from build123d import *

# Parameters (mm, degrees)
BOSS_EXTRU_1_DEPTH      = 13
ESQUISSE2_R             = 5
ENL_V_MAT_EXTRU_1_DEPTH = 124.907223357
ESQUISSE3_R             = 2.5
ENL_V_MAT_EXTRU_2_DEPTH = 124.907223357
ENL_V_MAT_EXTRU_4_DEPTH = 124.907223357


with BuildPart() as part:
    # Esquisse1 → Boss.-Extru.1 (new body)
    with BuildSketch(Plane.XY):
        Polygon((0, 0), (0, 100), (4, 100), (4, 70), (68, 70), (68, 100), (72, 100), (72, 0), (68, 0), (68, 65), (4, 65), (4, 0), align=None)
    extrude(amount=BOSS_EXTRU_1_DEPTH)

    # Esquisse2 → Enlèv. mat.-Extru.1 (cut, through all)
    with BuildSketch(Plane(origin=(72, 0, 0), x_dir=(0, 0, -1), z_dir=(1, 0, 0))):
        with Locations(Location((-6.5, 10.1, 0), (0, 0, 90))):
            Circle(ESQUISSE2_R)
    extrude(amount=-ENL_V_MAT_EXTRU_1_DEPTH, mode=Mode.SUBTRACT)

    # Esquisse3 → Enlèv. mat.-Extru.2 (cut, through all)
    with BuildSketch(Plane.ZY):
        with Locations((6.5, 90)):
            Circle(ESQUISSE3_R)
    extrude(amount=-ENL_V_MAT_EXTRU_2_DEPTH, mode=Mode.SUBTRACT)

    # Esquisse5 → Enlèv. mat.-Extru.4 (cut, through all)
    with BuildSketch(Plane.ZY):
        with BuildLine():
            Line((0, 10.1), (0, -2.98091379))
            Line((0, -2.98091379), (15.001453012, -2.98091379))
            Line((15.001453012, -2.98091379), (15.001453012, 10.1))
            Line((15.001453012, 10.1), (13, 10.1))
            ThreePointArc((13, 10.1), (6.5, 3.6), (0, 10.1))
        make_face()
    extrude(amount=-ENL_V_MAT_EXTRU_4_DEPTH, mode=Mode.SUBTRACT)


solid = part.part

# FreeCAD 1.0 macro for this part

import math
import FreeCAD as App
import Part
import Sketcher

doc = App.newDocument("Part")
body = doc.addObject("PartDesign::Body", "Body")

# Sketch on XY plane
sketch1 = body.newObject("Sketcher::SketchObject", "Sketch")
sketch1.AttachmentSupport = (doc.getObject("XY_Plane"), [""])
sketch1.MapMode = "FlatFace"
sketch1.addGeometry([
    Part.LineSegment(App.Vector(0, 100, 0), App.Vector(0, 0, 0)),  # 0
    Part.LineSegment(App.Vector(0, 0, 0), App.Vector(4, 0, 0)),  # 1
    Part.LineSegment(App.Vector(4, 0, 0), App.Vector(4, 65, 0)),  # 2
    Part.LineSegment(App.Vector(4, 65, 0), App.Vector(68, 65, 0)),  # 3
    Part.LineSegment(App.Vector(68, 65, 0), App.Vector(68, 0, 0)),  # 4
    Part.LineSegment(App.Vector(68, 0, 0), App.Vector(72, 0, 0)),  # 5
    Part.LineSegment(App.Vector(72, 0, 0), App.Vector(72, 100, 0)),  # 6
    Part.LineSegment(App.Vector(72, 100, 0), App.Vector(68, 100, 0)),  # 7
    Part.LineSegment(App.Vector(68, 100, 0), App.Vector(68, 70, 0)),  # 8
    Part.LineSegment(App.Vector(68, 70, 0), App.Vector(4, 70, 0)),  # 9
    Part.LineSegment(App.Vector(4, 70, 0), App.Vector(4, 100, 0)),  # 10
    Part.LineSegment(App.Vector(4, 100, 0), App.Vector(0, 100, 0)),  # 11
], False)
sketch1.addConstraint([
    Sketcher.Constraint("Coincident", 0, 2, 1, 1),
    Sketcher.Constraint("Coincident", 1, 2, 2, 1),
    Sketcher.Constraint("Coincident", 2, 2, 3, 1),
    Sketcher.Constraint("Coincident", 3, 2, 4, 1),
    Sketcher.Constraint("Coincident", 4, 2, 5, 1),
    Sketcher.Constraint("Coincident", 5, 2, 6, 1),
    Sketcher.Constraint("Coincident", 6, 2, 7, 1),
    Sketcher.Constraint("Coincident", 7, 2, 8, 1),
    Sketcher.Constraint("Coincident", 8, 2, 9, 1),
    Sketcher.Constraint("Coincident", 9, 2, 10, 1),
    Sketcher.Constraint("Coincident", 10, 2, 11, 1),
    Sketcher.Constraint("Coincident", 11, 2, 0, 1),
    Sketcher.Constraint("Vertical", 0),
    Sketcher.Constraint("Horizontal", 1),
    Sketcher.Constraint("Vertical", 2),
    Sketcher.Constraint("Horizontal", 3),
    Sketcher.Constraint("Vertical", 4),
    Sketcher.Constraint("Horizontal", 5),
    Sketcher.Constraint("Vertical", 6),
    Sketcher.Constraint("Horizontal", 7),
    Sketcher.Constraint("Vertical", 8),
    Sketcher.Constraint("Horizontal", 9),
    Sketcher.Constraint("Vertical", 10),
    Sketcher.Constraint("Horizontal", 11),
    Sketcher.Constraint("Coincident", 0, 2, -1, 1),
    Sketcher.Constraint("PointOnObject", 4, 2, -1),
    Sketcher.Constraint("Horizontal", 7, 2, 10, 2),
    Sketcher.Constraint("Vertical", 4, 2, 7, 2),
    Sketcher.Constraint("Vertical", 2, 2, 9, 2),
    Sketcher.Constraint("Equal", 1, 5),
    Sketcher.Constraint("DistanceX", 1, 1, 1, 2, 4.0),
    Sketcher.Constraint("DistanceX", 3, 1, 3, 2, 64.0),
    Sketcher.Constraint("DistanceY", 0, 2, 0, 1, 100.0),
    Sketcher.Constraint("DistanceY", 2, 1, 2, 2, 65.0),
    Sketcher.Constraint("DistanceY", 8, 2, 8, 1, 30.0),
])
pad1 = body.newObject("PartDesign::Pad", "Pad")
pad1.Profile = sketch1
pad1.Length = 13

# Sketch on YZ plane
sketch2 = body.newObject("Sketcher::SketchObject", "Sketch001")
sketch2.AttachmentSupport = (doc.getObject("YZ_Plane"), [""])
sketch2.MapMode = "FlatFace"
sketch2.AttachmentOffset = App.Placement(App.Vector(0, 0, 72), App.Rotation())
sketch2.addGeometry(Part.Circle(App.Vector(10, 6, 0), App.Vector(0, 0, 1), 5), False)
sketch2.addConstraint([
    Sketcher.Constraint("Diameter", 0, 10.0),
    Sketcher.Constraint("DistanceX", -1, 1, 0, 3, 10.1),
    Sketcher.Constraint("DistanceY", -1, 1, 0, 3, 6.5),
])
pocket1 = body.newObject("PartDesign::Pocket", "Pocket")
pocket1.Profile = sketch2
pocket1.Type = "ThroughAll"

# Sketch on YZ plane
sketch3 = body.newObject("Sketcher::SketchObject", "Sketch002")
sketch3.AttachmentSupport = (doc.getObject("YZ_Plane"), [""])
sketch3.MapMode = "FlatFace"
sketch3.addGeometry(Part.Circle(App.Vector(90, 6.5, 0), App.Vector(0, 0, 1), 2.5), False)
sketch3.addConstraint([
    Sketcher.Constraint("Diameter", 0, 5.0),
    Sketcher.Constraint("DistanceX", -1, 1, 0, 3, 90.0),
    Sketcher.Constraint("DistanceY", -1, 1, 0, 3, 6.5),
])
pocket2 = body.newObject("PartDesign::Pocket", "Pocket001")
pocket2.Profile = sketch3
pocket2.Type = "ThroughAll"
pocket2.Reversed = True

# Sketch on YZ plane
sketch4 = body.newObject("Sketcher::SketchObject", "Sketch003")
sketch4.AttachmentSupport = (doc.getObject("YZ_Plane"), [""])
sketch4.MapMode = "FlatFace"
sketch4.addGeometry([
    Part.LineSegment(App.Vector(10.1, 0, 0), App.Vector(-3, 0, 0)),  # 0
    Part.LineSegment(App.Vector(-3, 0, 0), App.Vector(-3, 15, 0)),  # 1
    Part.LineSegment(App.Vector(-3, 15, 0), App.Vector(10.1, 15, 0)),  # 2
    Part.LineSegment(App.Vector(10.1, 15, 0), App.Vector(10.1, 13, 0)),  # 3
    Part.ArcOfCircle(Part.Circle(App.Vector(10.1, 6.5, 0), App.Vector(0, 0, 1), 6.5), math.radians(90), math.radians(270)),  # 4
], False)
sketch4.addConstraint([
    Sketcher.Constraint("Coincident", 0, 2, 1, 1),
    Sketcher.Constraint("Coincident", 1, 2, 2, 1),
    Sketcher.Constraint("Coincident", 2, 2, 3, 1),
    Sketcher.Constraint("Coincident", 3, 2, 4, 1),
    Sketcher.Constraint("Tangent", 4, 2, 0, 1),
    Sketcher.Constraint("Horizontal", 0),
    Sketcher.Constraint("Vertical", 1),
    Sketcher.Constraint("Horizontal", 2),
    Sketcher.Constraint("Vertical", 3),
    Sketcher.Constraint("PointOnObject", 0, 2, -1),
    Sketcher.Constraint("Vertical", 4, 3, 2, 2),
    Sketcher.Constraint("Radius", 4, 6.5),
    Sketcher.Constraint("DistanceX", -1, 1, 4, 3, 10.1),
    Sketcher.Constraint("DistanceX", 0, 2, 0, 1, 13.080914),
    Sketcher.Constraint("DistanceY", 1, 1, 1, 2, 15.001453),
])
pocket3 = body.newObject("PartDesign::Pocket", "Pocket002")
pocket3.Profile = sketch4
pocket3.Type = "ThroughAll"
pocket3.Reversed = True

doc.recompute()
